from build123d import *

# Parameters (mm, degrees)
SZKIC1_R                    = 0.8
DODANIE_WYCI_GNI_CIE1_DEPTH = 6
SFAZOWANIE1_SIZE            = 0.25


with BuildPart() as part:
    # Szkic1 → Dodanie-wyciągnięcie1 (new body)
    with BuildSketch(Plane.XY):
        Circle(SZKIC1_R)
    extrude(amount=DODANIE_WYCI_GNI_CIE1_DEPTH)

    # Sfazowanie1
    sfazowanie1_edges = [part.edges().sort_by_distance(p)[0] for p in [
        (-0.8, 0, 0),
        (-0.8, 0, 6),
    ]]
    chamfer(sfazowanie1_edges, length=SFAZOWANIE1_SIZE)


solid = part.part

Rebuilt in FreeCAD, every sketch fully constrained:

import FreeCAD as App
import Part
import Sketcher


def edges_at(feature, points):
    """Names of the edges that pass closest to the given points."""
    edges = feature.Shape.Edges
    near = lambda p: min(range(len(edges)), key=lambda i: edges[i].distToShape(Part.Vertex(*p))[0])
    return sorted({f"Edge{near(p) + 1}" for p in points})

doc = App.newDocument("Part")
body = doc.addObject("PartDesign::Body", "Body")

sketch1 = body.newObject("Sketcher::SketchObject", "Sketch")
sketch1.AttachmentSupport = (doc.getObject("XY_Plane"), [""])
sketch1.MapMode = "FlatFace"
sketch1.addGeometry(Part.Circle(App.Vector(0, 0, 0), App.Vector(0, 0, 1), 0.8), False)
sketch1.addConstraint([
    Sketcher.Constraint("Coincident", 0, 3, -1, 1),
    Sketcher.Constraint("Diameter", 0, 1.6),
])
pad1 = body.newObject("PartDesign::Pad", "Pad")
pad1.Profile = sketch1
pad1.Length = 6
doc.recompute()

chamfer = body.newObject("PartDesign::Chamfer", "Chamfer")
chamfer.Base = (pad1, edges_at(pad1, [(-0.8, 0, 0), (-0.8, 0, 6)]))
chamfer.Size = 0.25

doc.recompute()
